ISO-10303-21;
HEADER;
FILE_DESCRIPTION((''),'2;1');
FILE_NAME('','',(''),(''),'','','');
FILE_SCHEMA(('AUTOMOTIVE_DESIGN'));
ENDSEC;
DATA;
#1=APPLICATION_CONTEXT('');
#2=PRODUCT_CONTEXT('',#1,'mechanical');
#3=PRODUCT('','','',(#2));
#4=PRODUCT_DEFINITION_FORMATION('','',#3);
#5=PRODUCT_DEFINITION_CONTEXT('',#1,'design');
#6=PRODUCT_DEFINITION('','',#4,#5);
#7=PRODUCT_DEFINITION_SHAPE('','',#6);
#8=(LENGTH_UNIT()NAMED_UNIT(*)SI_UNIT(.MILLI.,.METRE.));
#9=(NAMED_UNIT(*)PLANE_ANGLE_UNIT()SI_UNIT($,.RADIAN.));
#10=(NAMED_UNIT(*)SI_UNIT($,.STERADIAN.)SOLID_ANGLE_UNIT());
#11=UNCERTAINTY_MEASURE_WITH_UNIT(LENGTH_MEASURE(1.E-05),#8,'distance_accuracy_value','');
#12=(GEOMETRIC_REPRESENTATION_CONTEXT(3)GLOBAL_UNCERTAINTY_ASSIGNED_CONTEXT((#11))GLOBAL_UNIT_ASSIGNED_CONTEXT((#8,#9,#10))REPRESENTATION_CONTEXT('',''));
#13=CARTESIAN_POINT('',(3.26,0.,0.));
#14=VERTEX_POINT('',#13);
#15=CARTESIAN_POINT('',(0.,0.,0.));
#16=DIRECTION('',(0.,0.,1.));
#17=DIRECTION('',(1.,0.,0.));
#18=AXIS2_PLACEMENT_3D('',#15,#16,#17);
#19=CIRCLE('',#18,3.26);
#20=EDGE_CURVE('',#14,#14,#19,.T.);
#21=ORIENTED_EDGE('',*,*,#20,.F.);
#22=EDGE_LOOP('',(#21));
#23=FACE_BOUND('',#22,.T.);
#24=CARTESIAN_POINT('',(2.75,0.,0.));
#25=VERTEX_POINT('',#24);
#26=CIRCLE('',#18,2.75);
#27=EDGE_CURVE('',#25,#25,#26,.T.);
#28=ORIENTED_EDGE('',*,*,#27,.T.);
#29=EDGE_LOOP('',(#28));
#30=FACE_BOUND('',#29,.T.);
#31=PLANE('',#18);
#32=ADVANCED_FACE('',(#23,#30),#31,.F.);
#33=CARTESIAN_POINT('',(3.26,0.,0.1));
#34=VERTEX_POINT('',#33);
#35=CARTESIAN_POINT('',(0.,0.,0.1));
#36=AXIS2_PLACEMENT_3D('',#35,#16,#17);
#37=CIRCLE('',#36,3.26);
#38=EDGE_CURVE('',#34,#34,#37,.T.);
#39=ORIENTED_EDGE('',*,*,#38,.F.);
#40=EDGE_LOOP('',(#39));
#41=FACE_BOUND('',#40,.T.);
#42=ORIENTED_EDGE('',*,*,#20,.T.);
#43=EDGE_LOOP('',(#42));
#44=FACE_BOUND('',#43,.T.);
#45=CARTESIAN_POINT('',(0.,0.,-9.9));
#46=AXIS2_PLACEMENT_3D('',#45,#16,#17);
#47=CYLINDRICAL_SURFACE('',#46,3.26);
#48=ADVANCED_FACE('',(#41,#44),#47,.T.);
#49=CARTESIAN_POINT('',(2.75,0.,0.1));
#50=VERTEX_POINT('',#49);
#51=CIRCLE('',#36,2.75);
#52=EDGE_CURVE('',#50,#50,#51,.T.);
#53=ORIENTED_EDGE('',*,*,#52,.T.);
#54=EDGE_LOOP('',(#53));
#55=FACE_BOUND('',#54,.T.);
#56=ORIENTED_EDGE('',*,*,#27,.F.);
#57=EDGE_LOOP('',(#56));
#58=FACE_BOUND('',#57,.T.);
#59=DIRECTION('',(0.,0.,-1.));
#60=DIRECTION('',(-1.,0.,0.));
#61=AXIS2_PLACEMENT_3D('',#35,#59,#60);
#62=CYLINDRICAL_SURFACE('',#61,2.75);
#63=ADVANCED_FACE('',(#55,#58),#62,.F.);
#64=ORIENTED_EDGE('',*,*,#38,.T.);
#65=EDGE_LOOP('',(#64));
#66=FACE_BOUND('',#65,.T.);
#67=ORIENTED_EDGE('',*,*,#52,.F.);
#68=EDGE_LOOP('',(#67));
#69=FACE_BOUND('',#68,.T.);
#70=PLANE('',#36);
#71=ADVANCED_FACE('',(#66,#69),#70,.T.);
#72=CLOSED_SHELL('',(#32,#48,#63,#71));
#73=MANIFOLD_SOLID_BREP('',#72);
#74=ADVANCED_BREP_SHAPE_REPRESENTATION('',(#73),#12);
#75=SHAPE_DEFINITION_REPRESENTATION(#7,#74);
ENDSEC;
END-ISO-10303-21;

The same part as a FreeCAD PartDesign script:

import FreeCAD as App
import Part
import Sketcher
from FreeCAD import Vector

doc = App.newDocument("Part")
body = doc.addObject("PartDesign::Body", "Body")

# Sketch on XY plane
sketch1 = doc.addObject("Sketcher::SketchObject", "Sketch")
body.addObject(sketch1)
sketch1.AttachmentSupport = (doc.XY_Plane, [""])
sketch1.MapMode = "FlatFace"
sketch1.addGeometry(Part.Circle(Vector(0, 0, 0), Vector(0, 0, 1), 3.586564), False)
sketch1.addGeometry(Part.Circle(Vector(0, 0, 0), Vector(0, 0, 1), 2.75), False)
sketch1.addConstraint(Sketcher.Constraint("Coincident", 0, 3, -1, 1))
sketch1.addConstraint(Sketcher.Constraint("Coincident", 1, 3, -1, 1))
sketch1.addConstraint(Sketcher.Constraint("Diameter", 1, 5.5))
sketch1.addConstraint(Sketcher.Constraint("Diameter", 0, 7.173127))
pad1 = doc.addObject("PartDesign::Pad", "Pad")
body.addObject(pad1)
pad1.Profile = sketch1
pad1.Length = 0.1

# Sketch on XY plane
sketch2 = doc.addObject("Sketcher::SketchObject", "Sketch001")
body.addObject(sketch2)
sketch2.AttachmentSupport = (doc.XY_Plane, [""])
sketch2.MapMode = "FlatFace"
sketch2.AttachmentOffset = App.Placement(Vector(0, 0, 0.1), App.Rotation())
sketch2.addGeometry(Part.Circle(Vector(0, 0, 0), Vector(0, 0, 1), 4.144167), False)
sketch2.addGeometry(Part.Circle(Vector(0, 0, 0), Vector(0, 0, 1), 3.26), False)
sketch2.addConstraint(Sketcher.Constraint("Coincident", 0, 3, -1, 1))
sketch2.addConstraint(Sketcher.Constraint("Coincident", 1, 3, -1, 1))
sketch2.addConstraint(Sketcher.Constraint("Diameter", 1, 6.52))
sketch2.addConstraint(Sketcher.Constraint("Diameter", 0, 8.288334))
pocket1 = doc.addObject("PartDesign::Pocket", "Pocket")
body.addObject(pocket1)
pocket1.Profile = sketch2
pocket1.Length = 10

doc.recompute()
